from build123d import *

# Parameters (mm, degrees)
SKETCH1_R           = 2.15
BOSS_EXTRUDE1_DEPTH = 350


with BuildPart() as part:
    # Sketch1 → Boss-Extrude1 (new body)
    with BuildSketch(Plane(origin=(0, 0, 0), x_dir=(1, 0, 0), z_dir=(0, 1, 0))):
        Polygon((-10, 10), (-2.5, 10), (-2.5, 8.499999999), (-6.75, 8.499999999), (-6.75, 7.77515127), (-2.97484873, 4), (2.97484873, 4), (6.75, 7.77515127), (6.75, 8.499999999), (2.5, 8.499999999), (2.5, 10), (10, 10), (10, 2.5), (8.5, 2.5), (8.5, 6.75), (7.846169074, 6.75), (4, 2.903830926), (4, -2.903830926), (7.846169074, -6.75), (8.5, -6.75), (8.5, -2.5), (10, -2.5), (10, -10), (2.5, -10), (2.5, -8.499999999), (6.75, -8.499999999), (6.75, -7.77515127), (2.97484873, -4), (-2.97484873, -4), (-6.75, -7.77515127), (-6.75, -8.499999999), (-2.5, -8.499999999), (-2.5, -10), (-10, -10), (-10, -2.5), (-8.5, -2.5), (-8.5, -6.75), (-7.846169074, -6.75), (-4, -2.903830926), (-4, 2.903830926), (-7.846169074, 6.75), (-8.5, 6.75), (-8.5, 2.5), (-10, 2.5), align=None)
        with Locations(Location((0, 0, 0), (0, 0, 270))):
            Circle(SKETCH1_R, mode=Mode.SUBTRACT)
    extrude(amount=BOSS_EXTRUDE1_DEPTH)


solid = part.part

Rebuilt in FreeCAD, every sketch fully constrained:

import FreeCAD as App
import Part
import Sketcher
Q = App.Units.Quantity

doc = App.newDocument("Part")
params = doc.addObject("Spreadsheet::Sheet", "Params")
for row, (alias, value) in enumerate([
    ("sketch1_diameter", "4.3 mm"),
    ("sketch1_width", "7.5 mm"),
    ("sketch1_width2", "1.5 mm"),
    ("sketch1_width3", "4.25 mm"),
    ("pad1_length", "350 mm"),
], start=1):
    params.set(f"A{row}", alias)
    params.set(f"B{row}", "=" + value)
    params.setAlias(f"B{row}", alias)

body = doc.addObject("PartDesign::Body", "Body")

# Sketch on XZ plane
sketch1 = body.newObject("Sketcher::SketchObject", "Sketch")
sketch1.AttachmentSupport = (doc.getObject("XZ_Plane"), [""])
sketch1.MapMode = "FlatFace"
sketch1.addGeometry([
    Part.LineSegment(App.Vector(-2.5, -10, 0), App.Vector(-10, -10, 0)),  # 0
    Part.LineSegment(App.Vector(-10, -10, 0), App.Vector(-10, -2.5, 0)),  # 1
    Part.LineSegment(App.Vector(-10, -2.5, 0), App.Vector(-8.5, -2.5, 0)),  # 2
    Part.LineSegment(App.Vector(-8.5, -2.5, 0), App.Vector(-8.5, -6.8, 0)),  # 3
    Part.LineSegment(App.Vector(-8.5, -6.8, 0), App.Vector(-7.8, -6.8, 0)),  # 4
    Part.LineSegment(App.Vector(-7.8, -6.8, 0), App.Vector(-4, -2.9, 0)),  # 5
    Part.LineSegment(App.Vector(-4, -2.9, 0), App.Vector(-4, 2.9, 0)),  # 6
    Part.LineSegment(App.Vector(-4, 2.9, 0), App.Vector(-7.8, 6.8, 0)),  # 7
    Part.LineSegment(App.Vector(-7.8, 6.8, 0), App.Vector(-8.5, 6.8, 0)),  # 8
    Part.LineSegment(App.Vector(-8.5, 6.8, 0), App.Vector(-8.5, 2.5, 0)),  # 9
    Part.LineSegment(App.Vector(-8.5, 2.5, 0), App.Vector(-10, 2.5, 0)),  # 10
    Part.LineSegment(App.Vector(-10, 2.5, 0), App.Vector(-10, 10, 0)),  # 11
    Part.LineSegment(App.Vector(-10, 10, 0), App.Vector(-2.5, 10, 0)),  # 12
    Part.LineSegment(App.Vector(-2.5, 10, 0), App.Vector(-2.5, 8.5, 0)),  # 13
    Part.LineSegment(App.Vector(-2.5, 8.5, 0), App.Vector(-6.8, 8.5, 0)),  # 14
    Part.LineSegment(App.Vector(-6.8, 8.5, 0), App.Vector(-6.8, 7.8, 0)),  # 15
    Part.LineSegment(App.Vector(-6.8, 7.8, 0), App.Vector(-3, 4, 0)),  # 16
    Part.LineSegment(App.Vector(-3, 4, 0), App.Vector(3, 4, 0)),  # 17
    Part.LineSegment(App.Vector(3, 4, 0), App.Vector(6.8, 7.8, 0)),  # 18
    Part.LineSegment(App.Vector(6.8, 7.8, 0), App.Vector(6.8, 8.5, 0)),  # 19
    Part.LineSegment(App.Vector(6.8, 8.5, 0), App.Vector(2.5, 8.5, 0)),  # 20
    Part.LineSegment(App.Vector(2.5, 8.5, 0), App.Vector(2.5, 10, 0)),  # 21
    Part.LineSegment(App.Vector(2.5, 10, 0), App.Vector(10, 10, 0)),  # 22
    Part.LineSegment(App.Vector(10, 10, 0), App.Vector(10, 2.5, 0)),  # 23
    Part.LineSegment(App.Vector(10, 2.5, 0), App.Vector(8.5, 2.5, 0)),  # 24
    Part.LineSegment(App.Vector(8.5, 2.5, 0), App.Vector(8.5, 6.8, 0)),  # 25
    Part.LineSegment(App.Vector(8.5, 6.8, 0), App.Vector(7.8, 6.8, 0)),  # 26
    Part.LineSegment(App.Vector(7.8, 6.8, 0), App.Vector(4, 2.9, 0)),  # 27
    Part.LineSegment(App.Vector(4, 2.9, 0), App.Vector(4, -2.9, 0)),  # 28
    Part.LineSegment(App.Vector(4, -2.9, 0), App.Vector(7.8, -6.8, 0)),  # 29
    Part.LineSegment(App.Vector(7.8, -6.8, 0), App.Vector(8.5, -6.8, 0)),  # 30
    Part.LineSegment(App.Vector(8.5, -6.8, 0), App.Vector(8.5, -2.5, 0)),  # 31
    Part.LineSegment(App.Vector(8.5, -2.5, 0), App.Vector(10, -2.5, 0)),  # 32
    Part.LineSegment(App.Vector(10, -2.5, 0), App.Vector(10, -10, 0)),  # 33
    Part.LineSegment(App.Vector(10, -10, 0), App.Vector(2.5, -10, 0)),  # 34
    Part.LineSegment(App.Vector(2.5, -10, 0), App.Vector(2.5, -8.5, 0)),  # 35
    Part.LineSegment(App.Vector(2.5, -8.5, 0), App.Vector(6.8, -8.5, 0)),  # 36
    Part.LineSegment(App.Vector(6.8, -8.5, 0), App.Vector(6.8, -7.8, 0)),  # 37
    Part.LineSegment(App.Vector(6.8, -7.8, 0), App.Vector(3, -4, 0)),  # 38
    Part.LineSegment(App.Vector(3, -4, 0), App.Vector(-3, -4, 0)),  # 39
    Part.LineSegment(App.Vector(-3, -4, 0), App.Vector(-6.8, -7.8, 0)),  # 40
    Part.LineSegment(App.Vector(-6.8, -7.8, 0), App.Vector(-6.8, -8.5, 0)),  # 41
    Part.LineSegment(App.Vector(-6.8, -8.5, 0), App.Vector(-2.5, -8.5, 0)),  # 42
    Part.LineSegment(App.Vector(-2.5, -8.5, 0), App.Vector(-2.5, -10, 0)),  # 43
    Part.Circle(App.Vector(0, 0, 0), App.Vector(0, 0, 1), 2.1),  # 44
], False)
sketch1.addConstraint([
    Sketcher.Constraint("Coincident", 0, 2, 1, 1),
    Sketcher.Constraint("Coincident", 1, 2, 2, 1),
    Sketcher.Constraint("Coincident", 2, 2, 3, 1),
    Sketcher.Constraint("Coincident", 3, 2, 4, 1),
    Sketcher.Constraint("Coincident", 4, 2, 5, 1),
    Sketcher.Constraint("Coincident", 5, 2, 6, 1),
    Sketcher.Constraint("Coincident", 6, 2, 7, 1),
    Sketcher.Constraint("Coincident", 7, 2, 8, 1),
    Sketcher.Constraint("Coincident", 8, 2, 9, 1),
    Sketcher.Constraint("Coincident", 9, 2, 10, 1),
    Sketcher.Constraint("Coincident", 10, 2, 11, 1),
    Sketcher.Constraint("Coincident", 11, 2, 12, 1),
    Sketcher.Constraint("Coincident", 12, 2, 13, 1),
    Sketcher.Constraint("Coincident", 13, 2, 14, 1),
    Sketcher.Constraint("Coincident", 14, 2, 15, 1),
    Sketcher.Constraint("Coincident", 15, 2, 16, 1),
    Sketcher.Constraint("Coincident", 16, 2, 17, 1),
    Sketcher.Constraint("Coincident", 17, 2, 18, 1),
    Sketcher.Constraint("Coincident", 18, 2, 19, 1),
    Sketcher.Constraint("Coincident", 19, 2, 20, 1),
    Sketcher.Constraint("Coincident", 20, 2, 21, 1),
    Sketcher.Constraint("Coincident", 21, 2, 22, 1),
    Sketcher.Constraint("Coincident", 22, 2, 23, 1),
    Sketcher.Constraint("Coincident", 23, 2, 24, 1),
    Sketcher.Constraint("Coincident", 24, 2, 25, 1),
    Sketcher.Constraint("Coincident", 25, 2, 26, 1),
    Sketcher.Constraint("Coincident", 26, 2, 27, 1),
    Sketcher.Constraint("Coincident", 27, 2, 28, 1),
    Sketcher.Constraint("Coincident", 28, 2, 29, 1),
    Sketcher.Constraint("Coincident", 29, 2, 30, 1),
    Sketcher.Constraint("Coincident", 30, 2, 31, 1),
    Sketcher.Constraint("Coincident", 31, 2, 32, 1),
    Sketcher.Constraint("Coincident", 32, 2, 33, 1),
    Sketcher.Constraint("Coincident", 33, 2, 34, 1),
    Sketcher.Constraint("Coincident", 34, 2, 35, 1),
    Sketcher.Constraint("Coincident", 35, 2, 36, 1),
    Sketcher.Constraint("Coincident", 36, 2, 37, 1),
    Sketcher.Constraint("Coincident", 37, 2, 38, 1),
    Sketcher.Constraint("Coincident", 38, 2, 39, 1),
    Sketcher.Constraint("Coincident", 39, 2, 40, 1),
    Sketcher.Constraint("Coincident", 40, 2, 41, 1),
    Sketcher.Constraint("Coincident", 41, 2, 42, 1),
    Sketcher.Constraint("Coincident", 42, 2, 43, 1),
    Sketcher.Constraint("Coincident", 43, 2, 0, 1),
    Sketcher.Constraint("Horizontal", 0),
    Sketcher.Constraint("Vertical", 1),
    Sketcher.Constraint("Horizontal", 2),
    Sketcher.Constraint("Vertical", 3),
    Sketcher.Constraint("Horizontal", 4),
    Sketcher.Constraint("Vertical", 6),
    Sketcher.Constraint("Horizontal", 8),
    Sketcher.Constraint("Vertical", 9),
    Sketcher.Constraint("Horizontal", 10),
    Sketcher.Constraint("Vertical", 11),
    Sketcher.Constraint("Horizontal", 12),
    Sketcher.Constraint("Vertical", 13),
    Sketcher.Constraint("Horizontal", 14),
    Sketcher.Constraint("Vertical", 15),
    Sketcher.Constraint("Horizontal", 17),
    Sketcher.Constraint("Vertical", 19),
    Sketcher.Constraint("Horizontal", 20),
    Sketcher.Constraint("Vertical", 21),
    Sketcher.Constraint("Horizontal", 22),
    Sketcher.Constraint("Vertical", 23),
    Sketcher.Constraint("Horizontal", 24),
    Sketcher.Constraint("Vertical", 25),
    Sketcher.Constraint("Horizontal", 26),
    Sketcher.Constraint("Vertical", 28),
    Sketcher.Constraint("Horizontal", 30),
    Sketcher.Constraint("Vertical", 31),
    Sketcher.Constraint("Horizontal", 32),
    Sketcher.Constraint("Vertical", 33),
    Sketcher.Constraint("Horizontal", 34),
    Sketcher.Constraint("Vertical", 35),
    Sketcher.Constraint("Horizontal", 36),
    Sketcher.Constraint("Vertical", 37),
    Sketcher.Constraint("Horizontal", 39),
    Sketcher.Constraint("Vertical", 41),
    Sketcher.Constraint("Horizontal", 42),
    Sketcher.Constraint("Vertical", 43),
    Sketcher.Constraint("Coincident", 44, 3, -1, 1),
    Sketcher.Constraint("Symmetric", 0, 2, 22, 2, -1, 1),
    Sketcher.Constraint("Symmetric", 2, 2, 24, 2, -1, 1),
    Sketcher.Constraint("Symmetric", 4, 2, 26, 2, -1, 1),
    Sketcher.Constraint("Symmetric", 5, 2, 27, 2, -1, 1),
    Sketcher.Constraint("Symmetric", 7, 2, 29, 2, -1, 1),
    Sketcher.Constraint("Symmetric", 9, 2, 31, 2, -1, 1),
    Sketcher.Constraint("Symmetric", 11, 2, 33, 2, -1, 1),
    Sketcher.Constraint("Symmetric", 13, 2, 35, 2, -1, 1),
    Sketcher.Constraint("Symmetric", 15, 2, 37, 2, -1, 1),
    Sketcher.Constraint("Symmetric", 16, 2, 38, 2, -1, 1),
    Sketcher.Constraint("Symmetric", 18, 2, 40, 2, -1, 1),
    Sketcher.Constraint("Symmetric", 20, 2, 42, 2, -1, 1),
    Sketcher.Constraint("Symmetric", 15, 2, 18, 2, -2),
    Sketcher.Constraint("Symmetric", 13, 2, 20, 2, -2),
    Sketcher.Constraint("Symmetric", 11, 2, 22, 2, -2),
    Sketcher.Constraint("Symmetric", 9, 2, 24, 2, -2),
    Sketcher.Constraint("Symmetric", 7, 2, 26, 2, -2),
    Sketcher.Constraint("Perpendicular", 5, 7),
    Sketcher.Constraint("Parallel", 7, 16),
    Sketcher.Constraint("Perpendicular", 16, 18),
    Sketcher.Constraint("Perpendicular", 27, 29),
    Sketcher.Constraint("Perpendicular", 38, 40),
    Sketcher.Constraint("Horizontal", 6, 2, 27, 2),
    Sketcher.Constraint("Equal", 34, 1),
    Sketcher.Constraint("Equal", 42, 3),
    Sketcher.Constraint("Equal", 32, 13),
    Sketcher.Constraint("Diameter", 44, Q("4.3 mm")),
    Sketcher.Constraint("DistanceX", 0, 2, 0, 1, Q("7.5 mm")),
    Sketcher.Constraint("DistanceX", 2, 1, 2, 2, Q("1.5 mm")),
    Sketcher.Constraint("DistanceX", 0, 2, -1, 1, Q("10 mm")),
    Sketcher.Constraint("DistanceY", 0, 2, -1, 1, Q("10 mm")),
    Sketcher.Constraint("DistanceX", 5, 2, -1, 1, Q("4 mm")),
    Sketcher.Constraint("DistanceY", -1, 1, 16, 2, Q("4 mm")),
    Sketcher.Constraint("DistanceX", 14, 2, 14, 1, Q("4.25 mm")),
    Sketcher.Constraint("DistanceX", 4, 1, 4, 2, Q("0.653831 mm")),
    Sketcher.Constraint("DistanceY", 15, 2, 15, 1, Q("0.724849 mm")),
])
sketch1.setExpression("Constraints[107]", "Params.sketch1_diameter")
sketch1.setExpression("Constraints[108]", "Params.sketch1_width")
sketch1.setExpression("Constraints[109]", "Params.sketch1_width2")
sketch1.setExpression("Constraints[114]", "Params.sketch1_width3")
pad1 = body.newObject("PartDesign::Pad", "Pad")
pad1.Profile = sketch1
pad1.setExpression("Length", "Params.pad1_length")
pad1.Reversed = True

doc.recompute()
